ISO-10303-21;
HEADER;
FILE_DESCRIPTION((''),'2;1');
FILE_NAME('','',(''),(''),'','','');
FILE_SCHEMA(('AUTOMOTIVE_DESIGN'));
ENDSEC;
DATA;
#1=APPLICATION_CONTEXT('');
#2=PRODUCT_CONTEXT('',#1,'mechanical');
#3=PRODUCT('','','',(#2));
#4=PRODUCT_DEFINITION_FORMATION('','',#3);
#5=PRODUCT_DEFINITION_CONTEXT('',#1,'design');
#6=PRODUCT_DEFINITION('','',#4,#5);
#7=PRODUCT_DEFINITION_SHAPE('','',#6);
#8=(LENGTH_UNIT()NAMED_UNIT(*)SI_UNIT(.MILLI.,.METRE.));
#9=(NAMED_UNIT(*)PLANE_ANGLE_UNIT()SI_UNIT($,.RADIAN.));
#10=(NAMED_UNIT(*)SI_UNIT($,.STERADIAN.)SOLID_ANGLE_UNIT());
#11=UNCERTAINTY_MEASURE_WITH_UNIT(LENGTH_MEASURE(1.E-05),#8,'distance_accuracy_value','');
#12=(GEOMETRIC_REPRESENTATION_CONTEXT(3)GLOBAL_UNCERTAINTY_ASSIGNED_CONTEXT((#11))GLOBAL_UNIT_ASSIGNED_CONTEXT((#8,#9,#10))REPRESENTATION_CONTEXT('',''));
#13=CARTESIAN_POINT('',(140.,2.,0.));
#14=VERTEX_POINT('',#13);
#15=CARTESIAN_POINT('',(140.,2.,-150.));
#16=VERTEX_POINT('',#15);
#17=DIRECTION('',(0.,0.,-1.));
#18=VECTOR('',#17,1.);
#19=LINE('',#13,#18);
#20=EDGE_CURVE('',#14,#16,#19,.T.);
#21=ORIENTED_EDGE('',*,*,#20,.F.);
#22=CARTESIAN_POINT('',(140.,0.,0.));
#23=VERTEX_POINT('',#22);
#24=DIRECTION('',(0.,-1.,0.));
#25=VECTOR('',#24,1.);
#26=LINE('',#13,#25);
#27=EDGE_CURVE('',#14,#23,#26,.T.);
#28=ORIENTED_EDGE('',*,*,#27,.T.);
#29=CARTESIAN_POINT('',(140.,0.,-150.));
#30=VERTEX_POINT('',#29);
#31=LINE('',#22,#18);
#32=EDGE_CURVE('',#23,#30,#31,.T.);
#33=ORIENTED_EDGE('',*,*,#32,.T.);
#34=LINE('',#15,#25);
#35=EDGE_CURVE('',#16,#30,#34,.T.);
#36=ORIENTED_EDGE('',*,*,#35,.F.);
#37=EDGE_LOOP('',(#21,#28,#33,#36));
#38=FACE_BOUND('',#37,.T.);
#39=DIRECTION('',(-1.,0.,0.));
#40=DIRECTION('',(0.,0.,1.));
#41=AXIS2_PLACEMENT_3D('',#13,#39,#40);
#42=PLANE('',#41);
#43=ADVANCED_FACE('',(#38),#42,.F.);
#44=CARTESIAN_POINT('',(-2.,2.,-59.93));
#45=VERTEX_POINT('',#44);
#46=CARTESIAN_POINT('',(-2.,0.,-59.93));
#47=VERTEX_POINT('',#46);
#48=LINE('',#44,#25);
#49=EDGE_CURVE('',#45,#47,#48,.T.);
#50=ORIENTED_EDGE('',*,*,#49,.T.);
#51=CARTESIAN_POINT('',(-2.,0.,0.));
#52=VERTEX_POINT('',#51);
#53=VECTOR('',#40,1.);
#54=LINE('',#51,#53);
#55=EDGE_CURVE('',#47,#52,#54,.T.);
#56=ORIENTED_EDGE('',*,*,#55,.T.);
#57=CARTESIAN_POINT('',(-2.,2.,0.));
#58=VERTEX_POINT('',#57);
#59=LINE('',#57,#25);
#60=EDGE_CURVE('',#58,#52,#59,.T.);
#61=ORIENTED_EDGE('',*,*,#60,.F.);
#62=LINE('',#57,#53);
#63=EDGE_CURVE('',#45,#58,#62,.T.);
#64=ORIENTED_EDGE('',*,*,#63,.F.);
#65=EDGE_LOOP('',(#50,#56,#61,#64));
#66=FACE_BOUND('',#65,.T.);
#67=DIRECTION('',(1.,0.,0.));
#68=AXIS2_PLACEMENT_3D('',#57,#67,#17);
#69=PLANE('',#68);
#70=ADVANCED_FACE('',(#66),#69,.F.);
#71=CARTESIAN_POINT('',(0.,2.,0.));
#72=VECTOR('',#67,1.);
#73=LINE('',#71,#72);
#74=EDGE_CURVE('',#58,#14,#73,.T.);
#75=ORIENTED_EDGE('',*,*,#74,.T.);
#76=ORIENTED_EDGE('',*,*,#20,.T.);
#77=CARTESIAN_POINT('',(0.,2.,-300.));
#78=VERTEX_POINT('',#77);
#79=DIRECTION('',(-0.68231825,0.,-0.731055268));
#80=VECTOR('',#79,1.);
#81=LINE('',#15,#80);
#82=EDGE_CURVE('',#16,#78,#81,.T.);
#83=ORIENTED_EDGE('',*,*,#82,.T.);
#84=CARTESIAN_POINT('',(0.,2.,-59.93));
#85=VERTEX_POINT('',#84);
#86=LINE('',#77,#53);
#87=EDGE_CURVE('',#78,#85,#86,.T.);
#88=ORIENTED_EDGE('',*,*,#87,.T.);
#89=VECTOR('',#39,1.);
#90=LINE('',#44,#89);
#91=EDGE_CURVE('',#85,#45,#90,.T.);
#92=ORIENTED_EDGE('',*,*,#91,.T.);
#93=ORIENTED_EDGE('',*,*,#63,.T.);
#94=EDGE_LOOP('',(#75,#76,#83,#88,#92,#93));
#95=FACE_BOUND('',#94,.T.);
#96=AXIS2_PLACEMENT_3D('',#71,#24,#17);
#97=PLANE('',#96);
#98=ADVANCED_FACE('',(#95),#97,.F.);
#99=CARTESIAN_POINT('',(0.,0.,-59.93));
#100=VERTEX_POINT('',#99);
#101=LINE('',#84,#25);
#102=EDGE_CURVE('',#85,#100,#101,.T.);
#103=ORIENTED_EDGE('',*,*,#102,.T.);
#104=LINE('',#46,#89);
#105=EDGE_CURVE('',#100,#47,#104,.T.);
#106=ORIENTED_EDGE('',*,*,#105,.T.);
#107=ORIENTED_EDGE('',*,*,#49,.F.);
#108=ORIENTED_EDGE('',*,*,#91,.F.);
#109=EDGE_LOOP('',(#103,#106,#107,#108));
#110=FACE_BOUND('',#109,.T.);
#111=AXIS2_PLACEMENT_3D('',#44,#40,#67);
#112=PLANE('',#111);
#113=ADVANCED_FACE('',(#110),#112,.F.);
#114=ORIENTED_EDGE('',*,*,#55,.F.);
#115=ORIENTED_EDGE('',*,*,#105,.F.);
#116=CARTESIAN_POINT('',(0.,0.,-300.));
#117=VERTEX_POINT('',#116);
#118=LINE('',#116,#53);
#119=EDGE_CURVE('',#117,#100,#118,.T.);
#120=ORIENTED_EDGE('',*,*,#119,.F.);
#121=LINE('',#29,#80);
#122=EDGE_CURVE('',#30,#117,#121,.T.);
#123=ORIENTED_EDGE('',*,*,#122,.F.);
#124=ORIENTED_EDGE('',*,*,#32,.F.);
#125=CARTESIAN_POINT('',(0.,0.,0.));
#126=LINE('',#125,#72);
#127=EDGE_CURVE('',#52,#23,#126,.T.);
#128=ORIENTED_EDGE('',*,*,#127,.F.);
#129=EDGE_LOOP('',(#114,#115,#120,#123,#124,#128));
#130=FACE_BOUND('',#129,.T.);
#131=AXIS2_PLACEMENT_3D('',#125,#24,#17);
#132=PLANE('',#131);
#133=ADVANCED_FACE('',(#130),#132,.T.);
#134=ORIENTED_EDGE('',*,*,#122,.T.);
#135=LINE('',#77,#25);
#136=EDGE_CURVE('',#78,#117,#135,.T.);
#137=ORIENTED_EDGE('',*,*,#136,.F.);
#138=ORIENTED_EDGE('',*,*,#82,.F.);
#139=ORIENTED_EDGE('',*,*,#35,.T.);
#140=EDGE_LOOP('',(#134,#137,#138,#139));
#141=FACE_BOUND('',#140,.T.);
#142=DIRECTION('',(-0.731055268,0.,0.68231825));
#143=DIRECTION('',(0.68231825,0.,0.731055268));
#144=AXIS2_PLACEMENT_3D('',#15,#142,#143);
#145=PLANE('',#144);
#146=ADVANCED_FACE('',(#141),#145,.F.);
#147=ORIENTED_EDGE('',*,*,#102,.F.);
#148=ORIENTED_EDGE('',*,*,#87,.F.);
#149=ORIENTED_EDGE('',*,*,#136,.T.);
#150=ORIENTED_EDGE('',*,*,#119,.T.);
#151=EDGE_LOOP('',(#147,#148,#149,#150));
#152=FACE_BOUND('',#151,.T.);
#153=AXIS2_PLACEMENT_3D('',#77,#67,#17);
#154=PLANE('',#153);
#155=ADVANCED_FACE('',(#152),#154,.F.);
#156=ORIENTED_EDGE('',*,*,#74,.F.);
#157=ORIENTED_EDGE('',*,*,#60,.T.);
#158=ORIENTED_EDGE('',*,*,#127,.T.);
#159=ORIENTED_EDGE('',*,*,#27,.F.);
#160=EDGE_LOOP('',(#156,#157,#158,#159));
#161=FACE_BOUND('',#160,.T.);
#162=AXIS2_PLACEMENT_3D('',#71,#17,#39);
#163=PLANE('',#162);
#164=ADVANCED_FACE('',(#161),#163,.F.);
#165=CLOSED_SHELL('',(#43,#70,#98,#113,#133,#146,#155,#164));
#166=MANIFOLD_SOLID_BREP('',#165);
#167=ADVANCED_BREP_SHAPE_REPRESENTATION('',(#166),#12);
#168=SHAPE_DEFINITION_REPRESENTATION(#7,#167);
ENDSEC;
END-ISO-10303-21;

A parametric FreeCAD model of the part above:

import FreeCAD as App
import Part
import Sketcher
from FreeCAD import Vector

doc = App.newDocument("Part")
body = doc.addObject("PartDesign::Body", "Body")

# Sketch on XZ plane
sketch1 = body.newObject("Sketcher::SketchObject", "Sketch")
sketch1.AttachmentSupport = (doc.getObject("XZ_Plane"), [""])
sketch1.MapMode = "FlatFace"
sketch1.addGeometry(Part.LineSegment(Vector(0, -300, 0), Vector(0, -59.93, 0)), False)
sketch1.addGeometry(Part.LineSegment(Vector(0, -59.93, 0), Vector(-2, -59.93, 0)), False)
sketch1.addGeometry(Part.LineSegment(Vector(-2, -59.93, 0), Vector(-2, 0, 0)), False)
sketch1.addGeometry(Part.LineSegment(Vector(-2, 0, 0), Vector(140, 0, 0)), False)
sketch1.addGeometry(Part.LineSegment(Vector(140, 0, 0), Vector(140, -150, 0)), False)
sketch1.addGeometry(Part.LineSegment(Vector(140, -150, 0), Vector(0, -300, 0)), False)
sketch1.addConstraint(Sketcher.Constraint("Coincident", 0, 2, 1, 1))
sketch1.addConstraint(Sketcher.Constraint("Coincident", 1, 2, 2, 1))
sketch1.addConstraint(Sketcher.Constraint("Coincident", 2, 2, 3, 1))
sketch1.addConstraint(Sketcher.Constraint("Coincident", 3, 2, 4, 1))
sketch1.addConstraint(Sketcher.Constraint("Coincident", 4, 2, 5, 1))
sketch1.addConstraint(Sketcher.Constraint("Coincident", 5, 2, 0, 1))
sketch1.addConstraint(Sketcher.Constraint("Vertical", 0))
sketch1.addConstraint(Sketcher.Constraint("Horizontal", 1))
sketch1.addConstraint(Sketcher.Constraint("Vertical", 2))
sketch1.addConstraint(Sketcher.Constraint("Horizontal", 3))
sketch1.addConstraint(Sketcher.Constraint("Vertical", 4))
sketch1.addConstraint(Sketcher.Constraint("PointOnObject", 0, 2, -2))
sketch1.addConstraint(Sketcher.Constraint("PointOnObject", 2, 2, -1))
sketch1.addConstraint(Sketcher.Constraint("DistanceX", 1, 2, 1, 1, 2.0))
sketch1.addConstraint(Sketcher.Constraint("DistanceX", 3, 1, 3, 2, 142.0))
sketch1.addConstraint(Sketcher.Constraint("DistanceY", 4, 2, 4, 1, 150.0))
sketch1.addConstraint(Sketcher.Constraint("DistanceY", 5, 2, -1, 1, 300.0))
sketch1.addConstraint(Sketcher.Constraint("DistanceY", 0, 1, 0, 2, 240.07))
pad1 = body.newObject("PartDesign::Pad", "Pad")
pad1.Profile = sketch1
pad1.Length = 2
pad1.Reversed = True

doc.recompute()
